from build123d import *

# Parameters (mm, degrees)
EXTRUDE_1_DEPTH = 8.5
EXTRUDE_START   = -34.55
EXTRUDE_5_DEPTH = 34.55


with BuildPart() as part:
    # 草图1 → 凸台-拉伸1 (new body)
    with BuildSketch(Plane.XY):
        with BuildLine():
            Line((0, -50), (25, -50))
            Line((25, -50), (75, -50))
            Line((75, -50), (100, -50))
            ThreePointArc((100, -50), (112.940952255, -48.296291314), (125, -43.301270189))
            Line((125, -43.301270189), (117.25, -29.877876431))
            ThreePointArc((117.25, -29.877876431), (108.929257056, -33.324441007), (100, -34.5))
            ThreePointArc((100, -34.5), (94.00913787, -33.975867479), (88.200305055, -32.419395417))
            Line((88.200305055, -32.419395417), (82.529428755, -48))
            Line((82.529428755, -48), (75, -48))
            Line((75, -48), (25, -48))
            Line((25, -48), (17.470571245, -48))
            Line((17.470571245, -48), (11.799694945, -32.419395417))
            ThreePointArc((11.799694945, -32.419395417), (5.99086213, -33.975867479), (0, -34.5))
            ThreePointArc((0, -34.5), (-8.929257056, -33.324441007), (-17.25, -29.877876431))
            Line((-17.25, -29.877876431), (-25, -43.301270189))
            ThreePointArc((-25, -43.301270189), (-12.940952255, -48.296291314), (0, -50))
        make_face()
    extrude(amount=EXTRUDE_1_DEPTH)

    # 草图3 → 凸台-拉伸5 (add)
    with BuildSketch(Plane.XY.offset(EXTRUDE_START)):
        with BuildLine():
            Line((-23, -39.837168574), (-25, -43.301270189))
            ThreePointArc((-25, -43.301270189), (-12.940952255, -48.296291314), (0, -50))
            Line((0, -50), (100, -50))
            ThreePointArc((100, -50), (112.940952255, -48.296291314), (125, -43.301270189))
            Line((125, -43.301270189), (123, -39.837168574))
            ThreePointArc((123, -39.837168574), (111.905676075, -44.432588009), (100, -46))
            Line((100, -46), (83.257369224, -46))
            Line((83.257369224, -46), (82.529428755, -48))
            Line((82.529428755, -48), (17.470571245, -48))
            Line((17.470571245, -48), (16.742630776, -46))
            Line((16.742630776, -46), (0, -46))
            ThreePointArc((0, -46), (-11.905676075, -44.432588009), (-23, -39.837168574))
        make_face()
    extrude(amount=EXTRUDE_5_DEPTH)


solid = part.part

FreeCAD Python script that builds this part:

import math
import FreeCAD as App
import Part
import Sketcher

V = App.Vector
Q = App.Units.Quantity

doc = App.newDocument("Part")
body = doc.addObject("PartDesign::Body", "Body")

# Sketch on XY plane
sketch1 = body.newObject("Sketcher::SketchObject", "Sketch")
sketch1.AttachmentSupport = (doc.getObject("XY_Plane"), [""])
sketch1.MapMode = "FlatFace"
sketch1.addGeometry(Part.LineSegment(V(0, -50, 0), V(100, -50, 0)), False)
sketch1.addGeometry(Part.ArcOfCircle(Part.Circle(V(100, 0, 0), V(0, 0, 1), 50), math.radians(-90), math.radians(-60)), False)
sketch1.addGeometry(Part.LineSegment(V(125, -43.30127, 0), V(117.25, -29.877876, 0)), False)
sketch1.addGeometry(Part.ArcOfCircle(Part.Circle(V(100, 0, 0), V(0, 0, 1), 34.5), math.radians(-90), math.radians(-60)), False)
sketch1.addGeometry(Part.ArcOfCircle(Part.Circle(V(100, 0, 0), V(0, 0, 1), 34.5), math.radians(-110), math.radians(-90)), False)
sketch1.addGeometry(Part.LineSegment(V(88.200305, -32.419395, 0), V(82.529429, -48, 0)), False)
sketch1.addGeometry(Part.LineSegment(V(82.529429, -48, 0), V(17.470571, -48, 0)), False)
sketch1.addGeometry(Part.LineSegment(V(17.470571, -48, 0), V(11.799695, -32.419395, 0)), False)
sketch1.addGeometry(Part.ArcOfCircle(Part.Circle(V(0, 0, 0), V(0, 0, 1), 34.5), math.radians(-90), math.radians(-70)), False)
sketch1.addGeometry(Part.ArcOfCircle(Part.Circle(V(0, 0, 0), V(0, 0, 1), 34.5), math.radians(-120), math.radians(-90)), False)
sketch1.addGeometry(Part.LineSegment(V(-17.25, -29.877876, 0), V(-25, -43.30127, 0)), False)
sketch1.addGeometry(Part.ArcOfCircle(Part.Circle(V(0, 0, 0), V(0, 0, 1), 50), math.radians(-120), math.radians(-90)), False)
sketch1.addConstraint(Sketcher.Constraint("Tangent", 0, 2, 1, 1))
sketch1.addConstraint(Sketcher.Constraint("Coincident", 1, 2, 2, 1))
sketch1.addConstraint(Sketcher.Constraint("Coincident", 2, 2, 3, 2))
sketch1.addConstraint(Sketcher.Constraint("Tangent", 3, 1, 4, 2))
sketch1.addConstraint(Sketcher.Constraint("Coincident", 4, 1, 5, 1))
sketch1.addConstraint(Sketcher.Constraint("Coincident", 5, 2, 6, 1))
sketch1.addConstraint(Sketcher.Constraint("Coincident", 6, 2, 7, 1))
sketch1.addConstraint(Sketcher.Constraint("Coincident", 7, 2, 8, 2))
sketch1.addConstraint(Sketcher.Constraint("Tangent", 8, 1, 9, 2))
sketch1.addConstraint(Sketcher.Constraint("Coincident", 9, 1, 10, 1))
sketch1.addConstraint(Sketcher.Constraint("Coincident", 10, 2, 11, 1))
sketch1.addConstraint(Sketcher.Constraint("Tangent", 11, 2, 0, 1))
sketch1.addConstraint(Sketcher.Constraint("Horizontal", 0))
sketch1.addConstraint(Sketcher.Constraint("Horizontal", 6))
sketch1.addConstraint(Sketcher.Constraint("Coincident", 8, 3, -1, 1))
sketch1.addConstraint(Sketcher.Constraint("Coincident", 11, 3, -1, 1))
sketch1.addConstraint(Sketcher.Constraint("Coincident", 3, 3, 1, 3))
sketch1.addConstraint(Sketcher.Constraint("Equal", 3, 4))
sketch1.addConstraint(Sketcher.Constraint("Equal", 4, 8))
sketch1.addConstraint(Sketcher.Constraint("Equal", 8, 9))
sketch1.addConstraint(Sketcher.Constraint("Equal", 1, 11))
sketch1.addConstraint(Sketcher.Constraint("PointOnObject", 8, 1, -2))
sketch1.addConstraint(Sketcher.Constraint("Horizontal", 4, 1, 7, 2))
sketch1.addConstraint(Sketcher.Constraint("Horizontal", 2, 2, 9, 1))
sketch1.addConstraint(Sketcher.Constraint("Horizontal", 1, 2, 10, 2))
sketch1.addConstraint(Sketcher.Constraint("Vertical", 0, 2, 3, 1))
sketch1.addConstraint(Sketcher.Constraint("Equal", 5, 7))
sketch1.addConstraint(Sketcher.Constraint("Radius", 1, Q("50 mm")))
sketch1.addConstraint(Sketcher.Constraint("Radius", 3, Q("34.5 mm")))
sketch1.addConstraint(Sketcher.Constraint("DistanceX", 0, 1, 0, 2, Q("100 mm")))
sketch1.addConstraint(Sketcher.Constraint("Angle", 2, Q("120 deg")))
sketch1.addConstraint(Sketcher.Constraint("Angle", 5, Q("-110 deg")))
sketch1.addConstraint(Sketcher.Constraint("DistanceX", -1, 1, 1, 2, Q("125 mm")))
sketch1.addConstraint(Sketcher.Constraint("DistanceY", 5, 2, -1, 1, Q("48 mm")))
sketch1.addConstraint(Sketcher.Constraint("DistanceX", 6, 2, 6, 1, Q("65.058858 mm")))
pad1 = body.newObject("PartDesign::Pad", "Pad")
pad1.Profile = sketch1
pad1.Length = 8.5

# Sketch on XY plane
sketch2 = body.newObject("Sketcher::SketchObject", "Sketch001")
sketch2.AttachmentSupport = (doc.getObject("XY_Plane"), [""])
sketch2.MapMode = "FlatFace"
sketch2.AttachmentOffset = App.Placement(V(0, 0, -34.55), App.Rotation())
sketch2.addGeometry(Part.LineSegment(V(-23, -39.837169, 0), V(-25, -43.30127, 0)), False)
sketch2.addGeometry(Part.ArcOfCircle(Part.Circle(V(0, 0, 0), V(0, 0, 1), 50), math.radians(-120), math.radians(-90)), False)
sketch2.addGeometry(Part.LineSegment(V(0, -50, 0), V(100, -50, 0)), False)
sketch2.addGeometry(Part.ArcOfCircle(Part.Circle(V(100, 0, 0), V(0, 0, 1), 50), math.radians(-90), math.radians(-60)), False)
sketch2.addGeometry(Part.LineSegment(V(125, -43.30127, 0), V(123, -39.837169, 0)), False)
sketch2.addGeometry(Part.ArcOfCircle(Part.Circle(V(100, 0, 0), V(0, 0, 1), 46), math.radians(-90), math.radians(-60)), False)
sketch2.addGeometry(Part.LineSegment(V(100, -46, 0), V(83.257369, -46, 0)), False)
sketch2.addGeometry(Part.LineSegment(V(83.257369, -46, 0), V(82.529429, -48, 0)), False)
sketch2.addGeometry(Part.LineSegment(V(82.529429, -48, 0), V(17.470571, -48, 0)), False)
sketch2.addGeometry(Part.LineSegment(V(17.470571, -48, 0), V(16.742631, -46, 0)), False)
sketch2.addGeometry(Part.LineSegment(V(16.742631, -46, 0), V(0, -46, 0)), False)
sketch2.addGeometry(Part.ArcOfCircle(Part.Circle(V(0, 0, 0), V(0, 0, 1), 46), math.radians(-120), math.radians(-90)), False)
sketch2.addConstraint(Sketcher.Constraint("Coincident", 0, 2, 1, 1))
sketch2.addConstraint(Sketcher.Constraint("Tangent", 1, 2, 2, 1))
sketch2.addConstraint(Sketcher.Constraint("Tangent", 2, 2, 3, 1))
sketch2.addConstraint(Sketcher.Constraint("Coincident", 3, 2, 4, 1))
sketch2.addConstraint(Sketcher.Constraint("Coincident", 4, 2, 5, 2))
sketch2.addConstraint(Sketcher.Constraint("Tangent", 5, 1, 6, 1))
sketch2.addConstraint(Sketcher.Constraint("Coincident", 6, 2, 7, 1))
sketch2.addConstraint(Sketcher.Constraint("Coincident", 7, 2, 8, 1))
sketch2.addConstraint(Sketcher.Constraint("Coincident", 8, 2, 9, 1))
sketch2.addConstraint(Sketcher.Constraint("Coincident", 9, 2, 10, 1))
sketch2.addConstraint(Sketcher.Constraint("Tangent", 10, 2, 11, 2))
sketch2.addConstraint(Sketcher.Constraint("Coincident", 11, 1, 0, 1))
sketch2.addConstraint(Sketcher.Constraint("Horizontal", 2))
sketch2.addConstraint(Sketcher.Constraint("Horizontal", 6))
sketch2.addConstraint(Sketcher.Constraint("Horizontal", 8))
sketch2.addConstraint(Sketcher.Constraint("Horizontal", 10))
sketch2.addConstraint(Sketcher.Constraint("Coincident", 1, 3, -1, 1))
sketch2.addConstraint(Sketcher.Constraint("Coincident", 11, 3, -1, 1))
sketch2.addConstraint(Sketcher.Constraint("Coincident", 5, 3, 3, 3))
sketch2.addConstraint(Sketcher.Constraint("Equal", 1, 3))
sketch2.addConstraint(Sketcher.Constraint("Equal", 5, 11))
sketch2.addConstraint(Sketcher.Constraint("Horizontal", 0, 2, 3, 2))
sketch2.addConstraint(Sketcher.Constraint("Horizontal", 4, 2, 11, 1))
sketch2.addConstraint(Sketcher.Constraint("Equal", 6, 10))
sketch2.addConstraint(Sketcher.Constraint("Equal", 7, 9))
sketch2.addConstraint(Sketcher.Constraint("Radius", 1, Q("50 mm")))
sketch2.addConstraint(Sketcher.Constraint("Radius", 5, Q("46 mm")))
sketch2.addConstraint(Sketcher.Constraint("DistanceX", 2, 1, 2, 2, Q("100 mm")))
sketch2.addConstraint(Sketcher.Constraint("Angle", 0, Q("-120 deg")))
sketch2.addConstraint(Sketcher.Constraint("Angle", 7, Q("-110 deg")))
sketch2.addConstraint(Sketcher.Constraint("DistanceX", 0, 2, -1, 1, Q("25 mm")))
sketch2.addConstraint(Sketcher.Constraint("DistanceY", 7, 2, -1, 1, Q("48 mm")))
sketch2.addConstraint(Sketcher.Constraint("DistanceX", 6, 2, 6, 1, Q("16.742631 mm")))
pad2 = body.newObject("PartDesign::Pad", "Pad001")
pad2.Profile = sketch2
pad2.Length = 34.55

doc.recompute()
